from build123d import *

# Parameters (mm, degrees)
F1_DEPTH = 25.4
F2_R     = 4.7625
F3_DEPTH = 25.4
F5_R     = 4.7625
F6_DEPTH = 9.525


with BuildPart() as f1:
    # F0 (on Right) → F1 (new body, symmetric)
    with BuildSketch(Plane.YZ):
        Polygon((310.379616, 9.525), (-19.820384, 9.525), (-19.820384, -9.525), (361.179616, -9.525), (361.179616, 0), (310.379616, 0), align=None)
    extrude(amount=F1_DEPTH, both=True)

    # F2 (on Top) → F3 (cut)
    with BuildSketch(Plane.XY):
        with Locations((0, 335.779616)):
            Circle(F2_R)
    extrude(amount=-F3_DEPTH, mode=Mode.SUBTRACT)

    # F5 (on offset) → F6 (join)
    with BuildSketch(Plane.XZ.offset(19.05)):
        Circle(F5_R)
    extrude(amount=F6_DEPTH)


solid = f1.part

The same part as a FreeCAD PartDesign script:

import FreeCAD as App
import Part
import Sketcher
Q = App.Units.Quantity


def add_polygon(sketch, points):
    """Adds a closed chain of lines whose ends are joined by coincident constraints."""
    first, n = sketch.GeometryCount, len(points)
    for a, b in zip(points, points[1:] + points[:1]):
        sketch.addGeometry(Part.LineSegment(App.Vector(*a, 0), App.Vector(*b, 0)), False)
    for i in range(n):
        sketch.addConstraint(Sketcher.Constraint("Coincident", first + i, 2, first + (i + 1) % n, 1))

doc = App.newDocument("Part")
body = doc.addObject("PartDesign::Body", "Body")

# Sketch on YZ plane
sketch1 = doc.addObject("Sketcher::SketchObject", "Sketch")
body.addObject(sketch1)
sketch1.AttachmentSupport = (doc.YZ_Plane, [""])
sketch1.MapMode = "FlatFace"
add_polygon(sketch1, [(310.379616, 9.525), (-19.820384, 9.525), (-19.820384, -9.525), (361.179616, -9.525), (361.179616, 0), (310.379616, 0)])  # lines 0-5
sketch1.addConstraint([
    Sketcher.Constraint("Horizontal", 0),
    Sketcher.Constraint("Vertical", 1),
    Sketcher.Constraint("Horizontal", 2),
    Sketcher.Constraint("Vertical", 3),
    Sketcher.Constraint("Horizontal", 4),
    Sketcher.Constraint("Vertical", 5),
    Sketcher.Constraint("PointOnObject", 3, 2, -1),
    Sketcher.Constraint("Equal", 3, 5),
    Sketcher.Constraint("DistanceX", 0, 2, 0, 1, Q("13 in")),
    Sketcher.Constraint("DistanceX", 2, 1, 2, 2, Q("15 in")),
    Sketcher.Constraint("DistanceY", 1, 2, 1, 1, Q("0.75 in")),
    Sketcher.Constraint("DistanceX", 0, 2, -1, 1, 19.820384),
])
pad1 = doc.addObject("PartDesign::Pad", "Pad")
body.addObject(pad1)
pad1.Profile = sketch1
pad1.Length = Q("2 in")
pad1.Midplane = True

# Sketch on XY plane
sketch2 = doc.addObject("Sketcher::SketchObject", "Sketch001")
body.addObject(sketch2)
sketch2.AttachmentSupport = (doc.XY_Plane, [""])
sketch2.MapMode = "FlatFace"
sketch2.addGeometry(Part.Circle(App.Vector(0, 335.779616, 0), App.Vector(0, 0, 1), 4.7625), False)
sketch2.addConstraint([
    Sketcher.Constraint("PointOnObject", 0, 3, -2),
    Sketcher.Constraint("Diameter", 0, Q("0.375 in")),
    Sketcher.Constraint("DistanceY", -1, 1, 0, 3, 335.779616),
])
pocket1 = doc.addObject("PartDesign::Pocket", "Pocket")
body.addObject(pocket1)
pocket1.Profile = sketch2
pocket1.Length = Q("1 in")

# Sketch on XZ plane
sketch3 = doc.addObject("Sketcher::SketchObject", "Sketch002")
body.addObject(sketch3)
sketch3.AttachmentSupport = (doc.XZ_Plane, [""])
sketch3.MapMode = "FlatFace"
sketch3.AttachmentOffset = App.Placement(App.Vector(0, 0, 0.75 * 25.4), App.Rotation())
sketch3.addGeometry(Part.Circle(App.Vector(0, 0, 0), App.Vector(0, 0, 1), 4.7625), False)
sketch3.addConstraint([
    Sketcher.Constraint("Coincident", 0, 3, -1, 1),
    Sketcher.Constraint("Diameter", 0, Q("0.375 in")),
])
pad2 = doc.addObject("PartDesign::Pad", "Pad001")
body.addObject(pad2)
pad2.Profile = sketch3
pad2.Length = Q("0.375 in")

doc.recompute()
